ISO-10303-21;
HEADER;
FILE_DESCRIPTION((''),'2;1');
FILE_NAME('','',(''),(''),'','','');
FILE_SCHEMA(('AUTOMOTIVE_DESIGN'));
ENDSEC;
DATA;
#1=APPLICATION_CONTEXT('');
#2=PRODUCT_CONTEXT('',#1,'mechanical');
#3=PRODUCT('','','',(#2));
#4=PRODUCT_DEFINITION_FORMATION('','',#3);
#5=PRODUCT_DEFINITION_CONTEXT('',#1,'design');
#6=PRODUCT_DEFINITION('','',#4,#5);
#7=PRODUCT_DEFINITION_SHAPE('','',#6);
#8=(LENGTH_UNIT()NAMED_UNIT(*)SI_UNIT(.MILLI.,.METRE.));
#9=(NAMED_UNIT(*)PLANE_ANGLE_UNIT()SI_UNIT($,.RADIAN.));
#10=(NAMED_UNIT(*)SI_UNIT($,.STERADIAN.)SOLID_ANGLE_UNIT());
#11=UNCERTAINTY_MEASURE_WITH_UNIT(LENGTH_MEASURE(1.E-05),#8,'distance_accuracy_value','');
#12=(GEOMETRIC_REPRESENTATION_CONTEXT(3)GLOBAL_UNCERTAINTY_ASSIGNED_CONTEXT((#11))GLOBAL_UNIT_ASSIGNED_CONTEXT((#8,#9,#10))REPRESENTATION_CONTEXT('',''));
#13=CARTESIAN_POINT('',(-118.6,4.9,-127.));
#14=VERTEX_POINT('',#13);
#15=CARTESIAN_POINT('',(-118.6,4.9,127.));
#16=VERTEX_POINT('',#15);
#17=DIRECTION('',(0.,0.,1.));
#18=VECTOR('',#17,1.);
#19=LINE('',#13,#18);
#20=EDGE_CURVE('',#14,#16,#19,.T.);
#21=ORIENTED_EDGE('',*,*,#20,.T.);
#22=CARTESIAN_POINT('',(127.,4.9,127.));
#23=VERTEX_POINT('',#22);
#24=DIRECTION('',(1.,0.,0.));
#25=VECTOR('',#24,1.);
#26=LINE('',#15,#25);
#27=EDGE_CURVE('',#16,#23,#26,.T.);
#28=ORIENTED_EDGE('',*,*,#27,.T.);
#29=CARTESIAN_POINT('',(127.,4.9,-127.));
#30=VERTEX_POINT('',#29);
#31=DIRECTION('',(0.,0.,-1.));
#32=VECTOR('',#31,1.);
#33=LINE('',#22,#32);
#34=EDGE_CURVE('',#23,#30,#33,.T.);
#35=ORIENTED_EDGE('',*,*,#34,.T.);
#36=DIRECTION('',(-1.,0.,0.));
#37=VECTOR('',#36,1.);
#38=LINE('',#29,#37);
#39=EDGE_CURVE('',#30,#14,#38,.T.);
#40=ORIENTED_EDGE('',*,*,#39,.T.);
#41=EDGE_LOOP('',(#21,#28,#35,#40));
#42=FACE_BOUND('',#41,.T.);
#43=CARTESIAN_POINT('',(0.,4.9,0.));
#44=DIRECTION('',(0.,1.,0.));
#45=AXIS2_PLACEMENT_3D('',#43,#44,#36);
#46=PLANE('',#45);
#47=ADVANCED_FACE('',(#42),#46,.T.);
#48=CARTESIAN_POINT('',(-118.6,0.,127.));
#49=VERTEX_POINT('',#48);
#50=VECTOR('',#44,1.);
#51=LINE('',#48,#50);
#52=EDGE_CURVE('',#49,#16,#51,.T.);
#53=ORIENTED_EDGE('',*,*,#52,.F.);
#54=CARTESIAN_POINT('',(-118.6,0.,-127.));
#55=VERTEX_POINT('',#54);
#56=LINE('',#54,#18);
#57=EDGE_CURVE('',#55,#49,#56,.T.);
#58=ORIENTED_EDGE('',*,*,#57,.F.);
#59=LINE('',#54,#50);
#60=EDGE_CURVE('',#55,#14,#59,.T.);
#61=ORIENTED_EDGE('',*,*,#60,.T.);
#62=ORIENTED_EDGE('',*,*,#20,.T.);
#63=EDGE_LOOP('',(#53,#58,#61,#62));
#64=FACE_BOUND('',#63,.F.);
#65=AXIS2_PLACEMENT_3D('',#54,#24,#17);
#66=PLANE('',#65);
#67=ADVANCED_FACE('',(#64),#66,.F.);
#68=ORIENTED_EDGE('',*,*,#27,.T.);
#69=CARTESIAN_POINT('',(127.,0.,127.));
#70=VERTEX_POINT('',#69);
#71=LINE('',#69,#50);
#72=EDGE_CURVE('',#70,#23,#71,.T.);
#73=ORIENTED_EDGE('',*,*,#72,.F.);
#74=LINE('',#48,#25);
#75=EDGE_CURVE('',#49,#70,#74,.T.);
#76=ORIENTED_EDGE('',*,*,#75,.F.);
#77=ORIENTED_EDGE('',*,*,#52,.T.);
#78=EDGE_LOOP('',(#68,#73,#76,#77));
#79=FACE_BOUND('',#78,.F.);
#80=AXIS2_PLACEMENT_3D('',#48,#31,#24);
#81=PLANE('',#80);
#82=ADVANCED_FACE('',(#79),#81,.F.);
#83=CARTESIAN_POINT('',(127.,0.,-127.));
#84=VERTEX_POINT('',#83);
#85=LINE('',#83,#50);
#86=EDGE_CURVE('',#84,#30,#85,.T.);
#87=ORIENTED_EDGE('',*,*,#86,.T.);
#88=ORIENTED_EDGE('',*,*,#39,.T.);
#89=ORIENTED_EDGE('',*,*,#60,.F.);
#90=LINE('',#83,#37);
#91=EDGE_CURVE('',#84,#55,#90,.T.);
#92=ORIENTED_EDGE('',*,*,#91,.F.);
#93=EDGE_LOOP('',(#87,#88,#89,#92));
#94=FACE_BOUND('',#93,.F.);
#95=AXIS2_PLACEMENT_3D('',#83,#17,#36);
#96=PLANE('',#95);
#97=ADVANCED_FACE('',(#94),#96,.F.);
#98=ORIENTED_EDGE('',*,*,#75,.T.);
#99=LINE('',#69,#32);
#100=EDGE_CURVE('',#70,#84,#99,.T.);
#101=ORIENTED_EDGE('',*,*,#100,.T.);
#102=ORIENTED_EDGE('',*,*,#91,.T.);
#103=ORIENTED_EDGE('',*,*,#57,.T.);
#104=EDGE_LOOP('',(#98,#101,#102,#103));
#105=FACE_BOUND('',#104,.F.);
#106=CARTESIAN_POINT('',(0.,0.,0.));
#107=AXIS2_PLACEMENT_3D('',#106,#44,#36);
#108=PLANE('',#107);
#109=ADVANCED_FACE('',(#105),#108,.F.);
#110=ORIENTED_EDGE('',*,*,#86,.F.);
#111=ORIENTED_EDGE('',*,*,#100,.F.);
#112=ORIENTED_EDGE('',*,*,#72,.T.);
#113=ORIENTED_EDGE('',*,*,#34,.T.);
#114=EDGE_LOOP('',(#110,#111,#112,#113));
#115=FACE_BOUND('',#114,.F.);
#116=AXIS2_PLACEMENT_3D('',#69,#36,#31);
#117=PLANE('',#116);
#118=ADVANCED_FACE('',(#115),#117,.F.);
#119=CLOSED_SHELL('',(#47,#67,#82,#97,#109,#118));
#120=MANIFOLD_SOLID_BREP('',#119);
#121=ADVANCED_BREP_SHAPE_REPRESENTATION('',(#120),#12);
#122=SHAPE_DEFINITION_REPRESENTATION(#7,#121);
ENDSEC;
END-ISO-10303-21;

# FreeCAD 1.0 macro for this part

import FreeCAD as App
import Part
import Sketcher
from FreeCAD import Vector
Q = App.Units.Quantity

doc = App.newDocument("Part")
body = doc.addObject("PartDesign::Body", "Body")

sketch1 = body.newObject("Sketcher::SketchObject", "Sketch")
sketch1.AttachmentSupport = (doc.getObject("XZ_Plane"), [""])
sketch1.MapMode = "FlatFace"
sketch1.addGeometry([
    Part.LineSegment(Vector(-119, -127, 0), Vector(-119, 127, 0)),
    Part.LineSegment(Vector(-119, 127, 0), Vector(127, 127, 0)),
    Part.LineSegment(Vector(127, 127, 0), Vector(127, -127, 0)),
    Part.LineSegment(Vector(127, -127, 0), Vector(-119, -127, 0)),
], False)
sketch1.addConstraint([
    Sketcher.Constraint("Coincident", 0, 2, 1, 1),
    Sketcher.Constraint("Coincident", 1, 2, 2, 1),
    Sketcher.Constraint("Coincident", 2, 2, 3, 1),
    Sketcher.Constraint("Coincident", 3, 2, 0, 1),
    Sketcher.Constraint("Vertical", 0),
    Sketcher.Constraint("Horizontal", 1),
    Sketcher.Constraint("Vertical", 2),
    Sketcher.Constraint("Horizontal", 3),
    Sketcher.Constraint("DistanceY", 0, 1, 0, 2, Q("254 mm")),
    Sketcher.Constraint("DistanceX", 1, 1, 1, 2, Q("245.6 mm")),
    Sketcher.Constraint("DistanceY", -1, 1, 0, 2, Q("127 mm")),
    Sketcher.Constraint("DistanceX", -1, 1, 1, 2, Q("127 mm")),
])
pad1 = body.newObject("PartDesign::Pad", "Pad")
pad1.Profile = sketch1
pad1.Length = 4.9
pad1.Reversed = True

doc.recompute()
